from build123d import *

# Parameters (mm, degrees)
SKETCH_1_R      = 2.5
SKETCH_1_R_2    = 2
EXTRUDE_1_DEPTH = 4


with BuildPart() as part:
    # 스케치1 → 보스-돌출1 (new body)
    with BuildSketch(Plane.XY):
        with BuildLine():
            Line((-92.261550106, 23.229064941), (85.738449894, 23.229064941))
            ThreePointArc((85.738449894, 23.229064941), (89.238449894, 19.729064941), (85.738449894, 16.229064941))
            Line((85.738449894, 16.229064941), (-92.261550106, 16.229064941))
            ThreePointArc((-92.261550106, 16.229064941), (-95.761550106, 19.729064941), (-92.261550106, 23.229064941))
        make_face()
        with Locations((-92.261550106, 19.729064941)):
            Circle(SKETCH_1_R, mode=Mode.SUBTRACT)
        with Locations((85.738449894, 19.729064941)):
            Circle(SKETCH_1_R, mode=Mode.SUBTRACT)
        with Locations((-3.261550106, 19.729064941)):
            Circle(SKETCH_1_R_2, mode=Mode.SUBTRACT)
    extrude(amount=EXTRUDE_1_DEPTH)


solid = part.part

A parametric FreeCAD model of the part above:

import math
import FreeCAD as App
import Part
import Sketcher

doc = App.newDocument("Part")
body = doc.addObject("PartDesign::Body", "Body")

sketch1 = body.newObject("Sketcher::SketchObject", "Sketch")
sketch1.AttachmentSupport = (doc.getObject("XY_Plane"), [""])
sketch1.MapMode = "FlatFace"
sketch1.addGeometry(Part.LineSegment(App.Vector(85.73845, 23.229065, 0), App.Vector(-92.26155, 23.229065, 0)), False)
sketch1.addGeometry(Part.ArcOfCircle(Part.Circle(App.Vector(-92.26155, 19.729065, 0), App.Vector(0, 0, 1), 3.5), math.radians(90), math.radians(270)), False)
sketch1.addGeometry(Part.LineSegment(App.Vector(-92.26155, 16.229065, 0), App.Vector(85.73845, 16.229065, 0)), False)
sketch1.addGeometry(Part.ArcOfCircle(Part.Circle(App.Vector(85.73845, 19.729065, 0), App.Vector(0, 0, 1), 3.5), math.radians(-90), math.radians(90)), False)
sketch1.addGeometry(Part.Circle(App.Vector(85.73845, 19.729065, 0), App.Vector(0, 0, 1), 2.5), False)
sketch1.addGeometry(Part.Circle(App.Vector(-3.26155, 19.729065, 0), App.Vector(0, 0, 1), 2), False)
sketch1.addGeometry(Part.Circle(App.Vector(-92.26155, 19.729065, 0), App.Vector(0, 0, 1), 2.5), False)
sketch1.addConstraint(Sketcher.Constraint("Tangent", 0, 2, 1, 1))
sketch1.addConstraint(Sketcher.Constraint("Tangent", 1, 2, 2, 1))
sketch1.addConstraint(Sketcher.Constraint("Tangent", 2, 2, 3, 1))
sketch1.addConstraint(Sketcher.Constraint("Tangent", 3, 2, 0, 1))
sketch1.addConstraint(Sketcher.Constraint("Horizontal", 0))
sketch1.addConstraint(Sketcher.Constraint("Horizontal", 2))
sketch1.addConstraint(Sketcher.Constraint("Coincident", 4, 3, 3, 3))
sketch1.addConstraint(Sketcher.Constraint("Coincident", 6, 3, 1, 3))
sketch1.addConstraint(Sketcher.Constraint("Equal", 4, 6))
sketch1.addConstraint(Sketcher.Constraint("Horizontal", 4, 3, 5, 3))
sketch1.addConstraint(Sketcher.Constraint("Diameter", 4, 5.0))
sketch1.addConstraint(Sketcher.Constraint("Diameter", 5, 4.0))
sketch1.addConstraint(Sketcher.Constraint("Radius", 1, 3.5))
sketch1.addConstraint(Sketcher.Constraint("DistanceX", 0, 2, 0, 1, 178.0))
sketch1.addConstraint(Sketcher.Constraint("DistanceX", 1, 3, 5, 3, 89.0))
sketch1.addConstraint(Sketcher.Constraint("DistanceX", 1, 3, -1, 1, 92.26155))
sketch1.addConstraint(Sketcher.Constraint("DistanceY", -1, 1, 1, 3, 19.729065))
pad1 = body.newObject("PartDesign::Pad", "Pad")
pad1.Profile = sketch1
pad1.Length = 4

doc.recompute()
